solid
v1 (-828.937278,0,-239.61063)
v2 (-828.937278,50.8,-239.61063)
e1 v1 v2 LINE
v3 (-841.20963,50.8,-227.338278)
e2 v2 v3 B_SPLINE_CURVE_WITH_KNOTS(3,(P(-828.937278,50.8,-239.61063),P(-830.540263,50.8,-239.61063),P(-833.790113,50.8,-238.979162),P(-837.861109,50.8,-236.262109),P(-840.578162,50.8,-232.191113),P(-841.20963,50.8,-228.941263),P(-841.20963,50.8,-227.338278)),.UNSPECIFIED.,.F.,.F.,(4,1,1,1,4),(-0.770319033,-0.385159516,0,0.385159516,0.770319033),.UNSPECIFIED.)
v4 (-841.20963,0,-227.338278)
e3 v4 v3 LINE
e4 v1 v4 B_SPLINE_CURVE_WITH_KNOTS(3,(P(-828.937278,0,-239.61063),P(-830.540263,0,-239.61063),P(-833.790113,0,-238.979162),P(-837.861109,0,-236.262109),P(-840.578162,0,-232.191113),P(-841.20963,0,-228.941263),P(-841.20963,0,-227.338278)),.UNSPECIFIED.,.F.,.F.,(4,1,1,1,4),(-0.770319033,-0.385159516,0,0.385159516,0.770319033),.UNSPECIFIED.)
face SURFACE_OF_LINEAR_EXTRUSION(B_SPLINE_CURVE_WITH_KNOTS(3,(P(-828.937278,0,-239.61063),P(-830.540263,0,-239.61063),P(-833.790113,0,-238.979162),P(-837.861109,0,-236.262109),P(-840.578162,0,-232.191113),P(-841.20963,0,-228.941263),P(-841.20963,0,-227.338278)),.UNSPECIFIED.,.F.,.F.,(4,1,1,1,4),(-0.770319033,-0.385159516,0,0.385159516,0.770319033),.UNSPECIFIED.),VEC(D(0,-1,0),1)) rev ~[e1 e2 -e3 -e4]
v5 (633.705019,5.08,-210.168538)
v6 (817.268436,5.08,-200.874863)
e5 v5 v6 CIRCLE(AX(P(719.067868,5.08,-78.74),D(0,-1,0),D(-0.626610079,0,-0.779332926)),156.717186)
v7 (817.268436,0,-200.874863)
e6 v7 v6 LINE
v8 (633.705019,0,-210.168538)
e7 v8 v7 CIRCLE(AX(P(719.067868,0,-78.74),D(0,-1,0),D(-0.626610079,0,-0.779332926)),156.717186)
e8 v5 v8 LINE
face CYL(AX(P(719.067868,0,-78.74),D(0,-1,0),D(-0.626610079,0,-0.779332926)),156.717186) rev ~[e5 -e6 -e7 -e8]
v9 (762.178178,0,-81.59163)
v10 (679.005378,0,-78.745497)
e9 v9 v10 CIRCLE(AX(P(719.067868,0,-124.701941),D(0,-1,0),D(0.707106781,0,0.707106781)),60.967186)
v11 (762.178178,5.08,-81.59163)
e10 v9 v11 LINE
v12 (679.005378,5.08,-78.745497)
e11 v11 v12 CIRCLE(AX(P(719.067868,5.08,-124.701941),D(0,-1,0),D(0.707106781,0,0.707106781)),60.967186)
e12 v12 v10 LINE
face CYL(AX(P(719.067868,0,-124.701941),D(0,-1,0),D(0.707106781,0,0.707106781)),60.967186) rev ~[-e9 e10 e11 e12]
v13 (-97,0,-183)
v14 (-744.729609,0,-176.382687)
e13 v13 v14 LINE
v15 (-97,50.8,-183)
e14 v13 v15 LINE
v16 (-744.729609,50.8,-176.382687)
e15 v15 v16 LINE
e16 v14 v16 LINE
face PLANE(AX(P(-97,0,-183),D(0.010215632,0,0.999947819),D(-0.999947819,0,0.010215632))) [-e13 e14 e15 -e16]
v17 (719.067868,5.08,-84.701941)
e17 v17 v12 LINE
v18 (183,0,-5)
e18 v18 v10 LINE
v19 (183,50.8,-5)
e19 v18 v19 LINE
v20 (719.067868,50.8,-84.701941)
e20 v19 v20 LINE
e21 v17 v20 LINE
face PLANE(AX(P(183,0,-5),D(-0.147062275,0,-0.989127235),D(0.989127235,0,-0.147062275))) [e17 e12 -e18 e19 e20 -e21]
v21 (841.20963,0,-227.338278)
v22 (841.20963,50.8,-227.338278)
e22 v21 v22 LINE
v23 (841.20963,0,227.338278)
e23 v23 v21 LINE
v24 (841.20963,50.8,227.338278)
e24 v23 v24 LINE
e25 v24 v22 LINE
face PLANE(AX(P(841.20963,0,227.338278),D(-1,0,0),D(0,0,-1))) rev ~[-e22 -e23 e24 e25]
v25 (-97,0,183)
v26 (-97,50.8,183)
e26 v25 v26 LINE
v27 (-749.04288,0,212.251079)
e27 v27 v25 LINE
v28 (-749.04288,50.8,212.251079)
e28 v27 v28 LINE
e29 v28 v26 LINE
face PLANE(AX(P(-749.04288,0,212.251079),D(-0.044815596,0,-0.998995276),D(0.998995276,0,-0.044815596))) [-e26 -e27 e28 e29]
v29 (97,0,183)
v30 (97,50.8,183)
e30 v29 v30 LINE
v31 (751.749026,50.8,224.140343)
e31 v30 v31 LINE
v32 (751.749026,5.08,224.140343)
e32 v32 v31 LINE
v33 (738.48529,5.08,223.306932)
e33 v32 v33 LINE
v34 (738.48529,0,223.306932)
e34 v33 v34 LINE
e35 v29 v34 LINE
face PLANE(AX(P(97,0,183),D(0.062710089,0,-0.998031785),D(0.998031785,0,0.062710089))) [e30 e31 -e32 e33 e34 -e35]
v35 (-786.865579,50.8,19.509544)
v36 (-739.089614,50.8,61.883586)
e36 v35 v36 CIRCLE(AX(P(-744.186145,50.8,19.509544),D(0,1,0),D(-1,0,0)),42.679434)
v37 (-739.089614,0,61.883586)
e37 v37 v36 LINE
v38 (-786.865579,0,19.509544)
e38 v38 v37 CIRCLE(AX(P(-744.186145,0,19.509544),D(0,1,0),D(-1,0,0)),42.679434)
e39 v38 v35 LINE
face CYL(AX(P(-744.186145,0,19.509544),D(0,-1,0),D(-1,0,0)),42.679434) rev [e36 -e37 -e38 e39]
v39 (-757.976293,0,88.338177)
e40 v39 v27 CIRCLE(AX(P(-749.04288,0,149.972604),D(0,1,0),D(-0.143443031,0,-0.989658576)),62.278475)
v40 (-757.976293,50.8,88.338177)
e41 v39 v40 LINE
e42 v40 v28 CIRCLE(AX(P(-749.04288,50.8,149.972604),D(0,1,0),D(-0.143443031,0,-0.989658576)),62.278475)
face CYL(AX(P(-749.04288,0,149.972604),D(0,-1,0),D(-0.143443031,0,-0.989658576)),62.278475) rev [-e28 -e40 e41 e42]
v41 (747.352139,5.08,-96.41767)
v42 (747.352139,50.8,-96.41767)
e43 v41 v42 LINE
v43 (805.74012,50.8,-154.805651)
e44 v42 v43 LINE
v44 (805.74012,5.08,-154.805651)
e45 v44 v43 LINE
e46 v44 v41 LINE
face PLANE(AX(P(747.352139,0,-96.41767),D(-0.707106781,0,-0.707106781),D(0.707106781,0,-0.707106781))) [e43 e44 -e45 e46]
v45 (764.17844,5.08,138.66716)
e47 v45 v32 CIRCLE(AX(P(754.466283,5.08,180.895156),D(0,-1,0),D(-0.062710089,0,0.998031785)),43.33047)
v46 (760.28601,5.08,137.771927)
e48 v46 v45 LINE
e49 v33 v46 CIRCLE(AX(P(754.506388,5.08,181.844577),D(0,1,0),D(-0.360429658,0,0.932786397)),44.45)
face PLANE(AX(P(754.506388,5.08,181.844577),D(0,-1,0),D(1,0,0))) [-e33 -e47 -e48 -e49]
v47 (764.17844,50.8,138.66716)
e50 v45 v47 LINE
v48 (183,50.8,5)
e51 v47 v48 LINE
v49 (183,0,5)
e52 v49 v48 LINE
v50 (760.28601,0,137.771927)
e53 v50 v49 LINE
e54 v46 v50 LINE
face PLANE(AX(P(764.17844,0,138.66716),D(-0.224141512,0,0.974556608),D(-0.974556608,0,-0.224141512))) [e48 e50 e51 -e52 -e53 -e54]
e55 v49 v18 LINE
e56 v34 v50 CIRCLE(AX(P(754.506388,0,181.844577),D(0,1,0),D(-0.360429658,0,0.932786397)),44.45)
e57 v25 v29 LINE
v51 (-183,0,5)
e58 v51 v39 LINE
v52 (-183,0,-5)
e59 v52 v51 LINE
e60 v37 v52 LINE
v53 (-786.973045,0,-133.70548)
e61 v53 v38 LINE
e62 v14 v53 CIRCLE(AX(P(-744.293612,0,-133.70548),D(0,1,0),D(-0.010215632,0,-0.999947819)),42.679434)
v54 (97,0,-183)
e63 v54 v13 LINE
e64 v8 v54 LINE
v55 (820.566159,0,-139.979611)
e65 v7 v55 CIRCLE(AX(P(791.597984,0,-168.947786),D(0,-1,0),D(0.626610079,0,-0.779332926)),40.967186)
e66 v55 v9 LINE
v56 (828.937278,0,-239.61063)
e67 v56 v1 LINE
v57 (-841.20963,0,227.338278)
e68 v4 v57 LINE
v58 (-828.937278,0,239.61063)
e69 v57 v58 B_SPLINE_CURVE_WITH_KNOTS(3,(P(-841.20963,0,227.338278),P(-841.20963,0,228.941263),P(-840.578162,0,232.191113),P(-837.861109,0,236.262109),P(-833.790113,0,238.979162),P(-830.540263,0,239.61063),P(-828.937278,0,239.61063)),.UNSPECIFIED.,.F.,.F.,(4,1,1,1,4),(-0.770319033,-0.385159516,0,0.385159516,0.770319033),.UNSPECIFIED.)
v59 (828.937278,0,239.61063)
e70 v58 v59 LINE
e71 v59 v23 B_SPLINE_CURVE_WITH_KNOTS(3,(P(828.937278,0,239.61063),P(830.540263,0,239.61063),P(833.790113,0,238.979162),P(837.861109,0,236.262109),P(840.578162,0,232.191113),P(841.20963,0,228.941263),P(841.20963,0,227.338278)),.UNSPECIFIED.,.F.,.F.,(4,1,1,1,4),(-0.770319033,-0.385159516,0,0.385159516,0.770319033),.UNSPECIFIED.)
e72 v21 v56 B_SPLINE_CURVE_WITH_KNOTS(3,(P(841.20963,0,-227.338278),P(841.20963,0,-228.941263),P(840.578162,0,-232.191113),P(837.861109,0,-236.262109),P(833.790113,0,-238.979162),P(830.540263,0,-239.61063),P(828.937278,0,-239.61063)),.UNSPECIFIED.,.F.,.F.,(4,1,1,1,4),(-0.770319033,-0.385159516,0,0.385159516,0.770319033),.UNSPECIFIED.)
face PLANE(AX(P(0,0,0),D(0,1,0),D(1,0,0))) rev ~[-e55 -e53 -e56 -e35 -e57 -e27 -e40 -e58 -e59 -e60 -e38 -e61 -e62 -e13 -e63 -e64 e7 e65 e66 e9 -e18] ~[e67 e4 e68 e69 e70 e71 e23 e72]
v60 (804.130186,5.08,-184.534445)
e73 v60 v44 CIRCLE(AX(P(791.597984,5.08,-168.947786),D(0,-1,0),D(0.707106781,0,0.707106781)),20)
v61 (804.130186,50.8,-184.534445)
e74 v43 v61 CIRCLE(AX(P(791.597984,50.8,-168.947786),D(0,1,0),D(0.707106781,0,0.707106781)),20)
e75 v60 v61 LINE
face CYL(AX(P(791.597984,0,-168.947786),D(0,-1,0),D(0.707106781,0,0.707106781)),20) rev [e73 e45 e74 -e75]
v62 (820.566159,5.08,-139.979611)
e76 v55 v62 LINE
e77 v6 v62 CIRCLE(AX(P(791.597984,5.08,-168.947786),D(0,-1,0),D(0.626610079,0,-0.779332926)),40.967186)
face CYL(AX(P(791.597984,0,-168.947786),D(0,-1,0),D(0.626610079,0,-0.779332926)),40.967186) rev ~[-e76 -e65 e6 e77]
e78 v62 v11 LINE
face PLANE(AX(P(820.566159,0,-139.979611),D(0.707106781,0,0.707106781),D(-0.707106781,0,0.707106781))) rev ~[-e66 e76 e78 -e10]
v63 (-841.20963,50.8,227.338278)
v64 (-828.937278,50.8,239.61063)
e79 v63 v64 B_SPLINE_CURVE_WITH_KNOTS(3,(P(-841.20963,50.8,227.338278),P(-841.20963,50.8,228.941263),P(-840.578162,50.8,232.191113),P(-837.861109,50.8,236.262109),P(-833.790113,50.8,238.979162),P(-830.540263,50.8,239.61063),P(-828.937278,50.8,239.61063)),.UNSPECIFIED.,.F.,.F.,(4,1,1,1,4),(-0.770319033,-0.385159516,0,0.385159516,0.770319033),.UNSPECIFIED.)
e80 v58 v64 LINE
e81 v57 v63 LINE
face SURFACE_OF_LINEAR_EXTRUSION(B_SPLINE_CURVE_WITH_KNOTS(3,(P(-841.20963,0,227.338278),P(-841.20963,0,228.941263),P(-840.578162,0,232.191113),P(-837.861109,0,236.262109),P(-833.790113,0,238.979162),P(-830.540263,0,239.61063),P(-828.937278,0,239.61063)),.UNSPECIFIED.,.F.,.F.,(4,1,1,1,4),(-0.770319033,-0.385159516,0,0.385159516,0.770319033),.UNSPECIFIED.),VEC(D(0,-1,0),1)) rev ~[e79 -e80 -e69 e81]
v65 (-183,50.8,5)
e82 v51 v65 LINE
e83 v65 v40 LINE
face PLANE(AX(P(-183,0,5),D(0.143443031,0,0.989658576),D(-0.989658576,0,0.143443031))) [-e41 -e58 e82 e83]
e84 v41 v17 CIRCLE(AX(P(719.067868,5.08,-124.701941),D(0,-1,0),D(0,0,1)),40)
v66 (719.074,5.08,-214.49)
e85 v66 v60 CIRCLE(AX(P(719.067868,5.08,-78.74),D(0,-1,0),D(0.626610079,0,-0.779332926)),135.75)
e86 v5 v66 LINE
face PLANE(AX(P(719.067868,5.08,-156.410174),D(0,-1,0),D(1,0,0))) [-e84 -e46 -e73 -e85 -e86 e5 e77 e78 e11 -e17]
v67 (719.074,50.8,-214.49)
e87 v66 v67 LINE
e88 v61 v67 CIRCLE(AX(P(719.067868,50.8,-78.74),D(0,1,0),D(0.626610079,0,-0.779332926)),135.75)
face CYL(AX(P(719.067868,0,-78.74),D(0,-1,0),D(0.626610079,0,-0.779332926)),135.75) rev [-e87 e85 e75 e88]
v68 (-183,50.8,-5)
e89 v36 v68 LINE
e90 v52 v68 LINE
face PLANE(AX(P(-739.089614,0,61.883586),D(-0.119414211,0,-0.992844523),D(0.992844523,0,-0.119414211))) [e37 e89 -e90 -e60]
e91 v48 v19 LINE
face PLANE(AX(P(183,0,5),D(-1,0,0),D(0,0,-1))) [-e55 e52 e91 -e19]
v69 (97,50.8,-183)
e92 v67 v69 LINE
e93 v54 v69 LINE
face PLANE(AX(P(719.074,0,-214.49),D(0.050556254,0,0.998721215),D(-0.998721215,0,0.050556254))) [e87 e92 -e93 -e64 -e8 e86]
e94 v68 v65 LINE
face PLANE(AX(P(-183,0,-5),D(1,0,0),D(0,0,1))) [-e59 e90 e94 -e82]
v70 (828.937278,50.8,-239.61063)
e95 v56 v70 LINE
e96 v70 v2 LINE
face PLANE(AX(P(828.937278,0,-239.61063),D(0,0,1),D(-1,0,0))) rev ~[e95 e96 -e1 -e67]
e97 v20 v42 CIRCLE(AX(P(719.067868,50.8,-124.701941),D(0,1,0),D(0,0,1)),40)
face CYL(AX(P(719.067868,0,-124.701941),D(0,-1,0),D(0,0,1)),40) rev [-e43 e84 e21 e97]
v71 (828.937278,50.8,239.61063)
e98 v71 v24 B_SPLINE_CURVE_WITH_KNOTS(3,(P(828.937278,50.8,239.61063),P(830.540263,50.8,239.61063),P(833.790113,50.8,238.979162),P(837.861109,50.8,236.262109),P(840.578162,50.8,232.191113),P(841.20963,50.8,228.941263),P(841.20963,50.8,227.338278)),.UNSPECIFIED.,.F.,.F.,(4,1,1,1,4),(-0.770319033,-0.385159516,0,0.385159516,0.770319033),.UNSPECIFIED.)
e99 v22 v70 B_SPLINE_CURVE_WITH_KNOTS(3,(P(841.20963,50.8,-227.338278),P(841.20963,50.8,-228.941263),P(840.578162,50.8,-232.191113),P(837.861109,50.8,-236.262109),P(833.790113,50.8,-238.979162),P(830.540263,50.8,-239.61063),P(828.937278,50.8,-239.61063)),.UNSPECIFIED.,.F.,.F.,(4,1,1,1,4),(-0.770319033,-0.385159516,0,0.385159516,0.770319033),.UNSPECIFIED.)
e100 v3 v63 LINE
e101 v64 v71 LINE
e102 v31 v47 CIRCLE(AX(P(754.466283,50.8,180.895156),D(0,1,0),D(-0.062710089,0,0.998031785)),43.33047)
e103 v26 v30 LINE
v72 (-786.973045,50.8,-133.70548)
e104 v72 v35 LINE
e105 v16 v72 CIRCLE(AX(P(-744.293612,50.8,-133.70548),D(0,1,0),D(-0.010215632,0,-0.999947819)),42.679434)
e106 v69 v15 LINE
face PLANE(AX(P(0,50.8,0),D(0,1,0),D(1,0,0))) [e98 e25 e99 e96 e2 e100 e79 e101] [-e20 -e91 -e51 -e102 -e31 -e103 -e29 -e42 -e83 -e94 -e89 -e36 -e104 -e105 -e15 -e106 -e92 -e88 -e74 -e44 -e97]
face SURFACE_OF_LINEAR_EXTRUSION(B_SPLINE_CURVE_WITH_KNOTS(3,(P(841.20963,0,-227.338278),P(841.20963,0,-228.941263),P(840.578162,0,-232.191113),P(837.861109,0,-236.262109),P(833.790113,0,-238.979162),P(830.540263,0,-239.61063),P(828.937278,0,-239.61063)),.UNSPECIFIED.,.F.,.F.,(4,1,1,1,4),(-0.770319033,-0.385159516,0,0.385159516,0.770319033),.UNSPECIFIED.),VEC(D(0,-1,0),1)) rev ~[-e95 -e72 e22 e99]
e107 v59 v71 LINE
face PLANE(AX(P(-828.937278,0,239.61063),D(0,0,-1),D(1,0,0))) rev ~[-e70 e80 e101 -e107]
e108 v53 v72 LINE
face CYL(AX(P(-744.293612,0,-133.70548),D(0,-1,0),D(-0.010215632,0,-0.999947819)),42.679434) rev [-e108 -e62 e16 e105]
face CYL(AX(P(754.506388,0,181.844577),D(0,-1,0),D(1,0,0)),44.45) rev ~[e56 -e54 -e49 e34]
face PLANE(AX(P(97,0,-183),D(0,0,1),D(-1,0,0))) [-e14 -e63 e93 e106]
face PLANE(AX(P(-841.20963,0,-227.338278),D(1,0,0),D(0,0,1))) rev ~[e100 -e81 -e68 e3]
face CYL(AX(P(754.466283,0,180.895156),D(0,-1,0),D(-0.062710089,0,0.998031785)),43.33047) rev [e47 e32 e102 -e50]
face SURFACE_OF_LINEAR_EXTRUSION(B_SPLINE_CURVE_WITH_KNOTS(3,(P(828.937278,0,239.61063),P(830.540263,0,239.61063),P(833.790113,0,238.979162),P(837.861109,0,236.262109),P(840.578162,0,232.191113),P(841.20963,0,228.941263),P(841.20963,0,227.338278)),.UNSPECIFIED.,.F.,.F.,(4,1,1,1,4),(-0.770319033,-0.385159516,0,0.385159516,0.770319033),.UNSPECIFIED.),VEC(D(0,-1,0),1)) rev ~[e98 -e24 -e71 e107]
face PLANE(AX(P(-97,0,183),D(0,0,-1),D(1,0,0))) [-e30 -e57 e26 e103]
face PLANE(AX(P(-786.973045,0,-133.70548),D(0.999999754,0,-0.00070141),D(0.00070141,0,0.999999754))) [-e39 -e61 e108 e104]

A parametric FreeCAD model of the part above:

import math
import FreeCAD as App
import Part
import Sketcher
from FreeCAD import Vector
Q = App.Units.Quantity

doc = App.newDocument("Part")
body = doc.addObject("PartDesign::Body", "Body")

# Sketch on XZ plane
sketch1 = doc.addObject("Sketcher::SketchObject", "Sketch")
body.addObject(sketch1)
sketch1.AttachmentSupport = (doc.XZ_Plane, [""])
sketch1.MapMode = "FlatFace"
sketch1.addGeometry([
    Part.LineSegment(Vector(828.937278, -239.61063, 0), Vector(-828.937278, -239.61063, 0)),  # 0
    Part.BSplineCurve([Vector(-828.937278, -239.61063, 0), Vector(-830.540263, -239.61063, 0), Vector(-833.790113, -238.979162, 0), Vector(-837.861109, -236.262109, 0), Vector(-840.578162, -232.191113, 0), Vector(-841.20963, -228.941263, 0), Vector(-841.20963, -227.338278, 0)], [4, 1, 1, 1, 4], [-0.770319033, -0.385159516, 0, 0.385159516, 0.770319033], False, 3, [1, 1, 1, 1, 1, 1, 1], False),  # 1
    Part.LineSegment(Vector(-841.20963, -227.338278, 0), Vector(-841.20963, 227.338278, 0)),  # 2
    Part.BSplineCurve([Vector(-841.20963, 227.338278, 0), Vector(-841.20963, 228.941263, 0), Vector(-840.578162, 232.191113, 0), Vector(-837.861109, 236.262109, 0), Vector(-833.790113, 238.979162, 0), Vector(-830.540263, 239.61063, 0), Vector(-828.937278, 239.61063, 0)], [4, 1, 1, 1, 4], [-0.770319033, -0.385159516, 0, 0.385159516, 0.770319033], False, 3, [1, 1, 1, 1, 1, 1, 1], False),  # 3
    Part.LineSegment(Vector(-828.937278, 239.61063, 0), Vector(828.937278, 239.61063, 0)),  # 4
    Part.BSplineCurve([Vector(828.937278, 239.61063, 0), Vector(830.540263, 239.61063, 0), Vector(833.790113, 238.979162, 0), Vector(837.861109, 236.262109, 0), Vector(840.578162, 232.191113, 0), Vector(841.20963, 228.941263, 0), Vector(841.20963, 227.338278, 0)], [4, 1, 1, 1, 4], [-0.770319033, -0.385159516, 0, 0.385159516, 0.770319033], False, 3, [1, 1, 1, 1, 1, 1, 1], False),  # 5
    Part.LineSegment(Vector(841.20963, 227.338278, 0), Vector(841.20963, -227.338278, 0)),  # 6
    Part.BSplineCurve([Vector(841.20963, -227.338278, 0), Vector(841.20963, -228.941263, 0), Vector(840.578162, -232.191113, 0), Vector(837.861109, -236.262109, 0), Vector(833.790113, -238.979162, 0), Vector(830.540263, -239.61063, 0), Vector(828.937278, -239.61063, 0)], [4, 1, 1, 1, 4], [-0.770319033, -0.385159516, 0, 0.385159516, 0.770319033], False, 3, [1, 1, 1, 1, 1, 1, 1], False),  # 7
    Part.LineSegment(Vector(719.067868, -84.701941, 0), Vector(183, -5, 0)),  # 8
    Part.LineSegment(Vector(183, -5, 0), Vector(183, 5, 0)),  # 9
    Part.LineSegment(Vector(183, 5, 0), Vector(764.17844, 138.66716, 0)),  # 10
    Part.ArcOfCircle(Part.Circle(Vector(754.466283, 180.895156, 0), Vector(0, 0, 1), 43.33047), math.radians(-77.047599), math.radians(93.595383)),  # 11
    Part.LineSegment(Vector(751.749026, 224.140343, 0), Vector(97, 183, 0)),  # 12
    Part.LineSegment(Vector(97, 183, 0), Vector(-97, 183, 0)),  # 13
    Part.LineSegment(Vector(-97, 183, 0), Vector(-749.04288, 212.251079, 0)),  # 14
    Part.ArcOfCircle(Part.Circle(Vector(-749.04288, 149.972604, 0), Vector(0, 0, 1), 62.278475), math.radians(90), math.radians(261.752871)),  # 15
    Part.LineSegment(Vector(-757.976293, 88.338177, 0), Vector(-183, 5, 0)),  # 16
    Part.LineSegment(Vector(-183, 5, 0), Vector(-183, -5, 0)),  # 17
    Part.LineSegment(Vector(-183, -5, 0), Vector(-739.089614, 61.883586, 0)),  # 18
    Part.ArcOfCircle(Part.Circle(Vector(-744.186145, 19.509544, 0), Vector(0, 0, 1), 42.679434), math.radians(83.141704), math.radians(180)),  # 19
    Part.LineSegment(Vector(-786.865579, 19.509544, 0), Vector(-786.973045, -133.70548, 0)),  # 20
    Part.ArcOfCircle(Part.Circle(Vector(-744.293612, -133.70548, 0), Vector(0, 0, 1), 42.679434), math.radians(180), math.radians(269.414677)),  # 21
    Part.LineSegment(Vector(-744.729609, -176.382687, 0), Vector(-97, -183, 0)),  # 22
    Part.LineSegment(Vector(-97, -183, 0), Vector(97, -183, 0)),  # 23
    Part.LineSegment(Vector(97, -183, 0), Vector(719.074, -214.49, 0)),  # 24
    Part.ArcOfCircle(Part.Circle(Vector(719.067868, -78.74, 0), Vector(0, 0, 1), 135.75), math.radians(-89.997412), math.radians(-51.199539)),  # 25
    Part.ArcOfCircle(Part.Circle(Vector(791.597984, -168.947786, 0), Vector(0, 0, 1), 20), math.radians(-51.199539), math.radians(45)),  # 26
    Part.LineSegment(Vector(805.74012, -154.805651, 0), Vector(747.352139, -96.41767, 0)),  # 27
    Part.ArcOfCircle(Part.Circle(Vector(719.067868, -124.701941, 0), Vector(0, 0, 1), 40), math.radians(45), math.radians(90)),  # 28
], False)
sketch1.addConstraint([
    Sketcher.Constraint("Block", 1),
    Sketcher.Constraint("Block", 3),
    Sketcher.Constraint("Block", 5),
    Sketcher.Constraint("Block", 7),
    Sketcher.Constraint("Coincident", 0, 2, 1, 1),
    Sketcher.Constraint("Coincident", 1, 2, 2, 1),
    Sketcher.Constraint("Coincident", 2, 2, 3, 1),
    Sketcher.Constraint("Coincident", 3, 2, 4, 1),
    Sketcher.Constraint("Coincident", 4, 2, 5, 1),
    Sketcher.Constraint("Coincident", 5, 2, 6, 1),
    Sketcher.Constraint("Coincident", 6, 2, 7, 1),
    Sketcher.Constraint("Coincident", 7, 2, 0, 1),
    Sketcher.Constraint("Coincident", 8, 2, 9, 1),
    Sketcher.Constraint("Coincident", 9, 2, 10, 1),
    Sketcher.Constraint("Tangent", 10, 2, 11, 1),
    Sketcher.Constraint("Tangent", 11, 2, 12, 1),
    Sketcher.Constraint("Coincident", 12, 2, 13, 1),
    Sketcher.Constraint("Coincident", 13, 2, 14, 1),
    Sketcher.Constraint("Coincident", 14, 2, 15, 1),
    Sketcher.Constraint("Tangent", 15, 2, 16, 1),
    Sketcher.Constraint("Coincident", 16, 2, 17, 1),
    Sketcher.Constraint("Coincident", 17, 2, 18, 1),
    Sketcher.Constraint("Tangent", 18, 2, 19, 1),
    Sketcher.Constraint("Coincident", 19, 2, 20, 1),
    Sketcher.Constraint("Coincident", 20, 2, 21, 1),
    Sketcher.Constraint("Tangent", 21, 2, 22, 1),
    Sketcher.Constraint("Coincident", 22, 2, 23, 1),
    Sketcher.Constraint("Coincident", 23, 2, 24, 1),
    Sketcher.Constraint("Coincident", 24, 2, 25, 1),
    Sketcher.Constraint("Tangent", 25, 2, 26, 1),
    Sketcher.Constraint("Tangent", 26, 2, 27, 1),
    Sketcher.Constraint("Tangent", 27, 2, 28, 1),
    Sketcher.Constraint("Coincident", 28, 2, 8, 1),
    Sketcher.Constraint("Vertical", 9),
    Sketcher.Constraint("Horizontal", 13),
    Sketcher.Constraint("Vertical", 17),
    Sketcher.Constraint("Horizontal", 23),
    Sketcher.Constraint("Equal", 19, 21),
    Sketcher.Constraint("Symmetric", 8, 2, 16, 2, -1, 1),
    Sketcher.Constraint("Symmetric", 12, 2, 22, 2, -1, 1),
    Sketcher.Constraint("Horizontal", 9, 2, 16, 2),
    Sketcher.Constraint("Horizontal", 8, 2, 17, 2),
    Sketcher.Constraint("Horizontal", 21, 3, 20, 2),
    Sketcher.Constraint("Vertical", 25, 3, 28, 3),
    Sketcher.Constraint("Vertical", 15, 3, 14, 2),
    Sketcher.Constraint("Vertical", 13, 2, 22, 2),
    Sketcher.Constraint("Vertical", 12, 2, 23, 2),
    Sketcher.Constraint("Vertical", 25, 3, 28, 2),
    Sketcher.Constraint("Radius", 26, 20.0),
    Sketcher.Constraint("Radius", 28, 40.0),
    Sketcher.Constraint("DistanceX", 13, 2, 13, 1, 194.0),
    Sketcher.Constraint("DistanceY", 9, 1, 9, 2, 10.0),
    Sketcher.Constraint("Angle", 27, Q("135 deg")),
    Sketcher.Constraint("Radius", 25, 135.75),
    Sketcher.Constraint("DistanceX", -1, 1, 8, 2, 183.0),
    Sketcher.Constraint("DistanceY", -1, 1, 12, 2, 183.0),
    Sketcher.Constraint("DistanceY", 25, 3, -1, 1, 78.74),
    Sketcher.Constraint("Radius", 11, 43.33047),
    Sketcher.Constraint("DistanceX", -1, 1, 24, 2, 719.074),
    Sketcher.Constraint("Radius", 15, 62.278475),
    Sketcher.Constraint("Radius", 19, 42.679434),
    Sketcher.Constraint("Distance", 16, 580.9845),
    Sketcher.Constraint("DistanceX", 11, 3, 26, 3, 37.131701),
    Sketcher.Constraint("DistanceY", 28, 3, 10, 2, 263.369101),
    Sketcher.Constraint("DistanceY", 14, 2, 2, 2, 15.087198),
    Sketcher.Constraint("DistanceX", 19, 2, 15, 3, 37.822699),
    Sketcher.Constraint("DistanceX", 20, 2, 19, 3, 42.7869),
    Sketcher.Constraint("Distance", 10, 596.351649),
    Sketcher.Constraint("Distance", 18, 560.097378),
    Sketcher.Constraint("Distance", 22, 647.76341),
    Sketcher.Constraint("DistanceY", 28, 3, -1, 1, 124.701941),
    Sketcher.Constraint("DistanceY", 19, 2, 18, 2, 42.374042),
])
pad1 = doc.addObject("PartDesign::Pad", "Pad")
body.addObject(pad1)
pad1.Profile = sketch1
pad1.Length = 50.8
pad1.Reversed = True

# Sketch on XZ plane
sketch2 = doc.addObject("Sketcher::SketchObject", "Sketch001")
body.addObject(sketch2)
sketch2.AttachmentSupport = (doc.XZ_Plane, [""])
sketch2.MapMode = "FlatFace"
sketch2.addGeometry([
    Part.Circle(Vector(755, 182, 0), Vector(0, 0, 1), 44),  # 0
    Part.LineSegment(Vector(821, -140, 0), Vector(762, -82, 0)),  # 1
    Part.ArcOfCircle(Part.Circle(Vector(719, -125, 0), Vector(0, 0, 1), 61), math.radians(45), math.radians(135)),  # 2
    Part.LineSegment(Vector(676, -82, 0), Vector(618, -140, 0)),  # 3
    Part.ArcOfCircle(Part.Circle(Vector(647, -169, 0), Vector(0, 0, 1), 41), math.radians(135), math.radians(231)),  # 4
    Part.ArcOfCircle(Part.Circle(Vector(719, -79, 0), Vector(0, 0, 1), 157), math.radians(-129), math.radians(-51)),  # 5
    Part.ArcOfCircle(Part.Circle(Vector(792, -169, 0), Vector(0, 0, 1), 41), math.radians(-51), math.radians(45)),  # 6
], False)
sketch2.addConstraint([
    Sketcher.Constraint("Tangent", 1, 2, 2, 1),
    Sketcher.Constraint("Tangent", 2, 2, 3, 1),
    Sketcher.Constraint("Tangent", 3, 2, 4, 1),
    Sketcher.Constraint("Tangent", 4, 2, 5, 1),
    Sketcher.Constraint("Tangent", 5, 2, 6, 1),
    Sketcher.Constraint("Tangent", 6, 2, 1, 1),
    Sketcher.Constraint("Equal", 4, 6),
    Sketcher.Constraint("Perpendicular", 1, 3),
    Sketcher.Constraint("Horizontal", 4, 3, 6, 3),
    Sketcher.Constraint("Horizontal", 1, 2, 2, 2),
    Sketcher.Constraint("Diameter", 0, 88.9),
    Sketcher.Constraint("DistanceY", 5, 3, -1, 1, 78.74),
    Sketcher.Constraint("Radius", 2, 60.967186),
    Sketcher.Constraint("Radius", 4, 40.967186),
    Sketcher.Constraint("Radius", 5, 156.717186),
    Sketcher.Constraint("DistanceX", -1, 1, 4, 2, 620.867299),
    Sketcher.Constraint("DistanceX", -1, 1, 0, 3, 754.506388),
    Sketcher.Constraint("DistanceY", 2, 3, -1, 1, 124.701941),
    Sketcher.Constraint("DistanceY", -1, 1, 0, 3, 181.844577),
])
pocket1 = doc.addObject("PartDesign::Pocket", "Pocket")
body.addObject(pocket1)
pocket1.Profile = sketch2
pocket1.Length = 5.08

doc.recompute()
